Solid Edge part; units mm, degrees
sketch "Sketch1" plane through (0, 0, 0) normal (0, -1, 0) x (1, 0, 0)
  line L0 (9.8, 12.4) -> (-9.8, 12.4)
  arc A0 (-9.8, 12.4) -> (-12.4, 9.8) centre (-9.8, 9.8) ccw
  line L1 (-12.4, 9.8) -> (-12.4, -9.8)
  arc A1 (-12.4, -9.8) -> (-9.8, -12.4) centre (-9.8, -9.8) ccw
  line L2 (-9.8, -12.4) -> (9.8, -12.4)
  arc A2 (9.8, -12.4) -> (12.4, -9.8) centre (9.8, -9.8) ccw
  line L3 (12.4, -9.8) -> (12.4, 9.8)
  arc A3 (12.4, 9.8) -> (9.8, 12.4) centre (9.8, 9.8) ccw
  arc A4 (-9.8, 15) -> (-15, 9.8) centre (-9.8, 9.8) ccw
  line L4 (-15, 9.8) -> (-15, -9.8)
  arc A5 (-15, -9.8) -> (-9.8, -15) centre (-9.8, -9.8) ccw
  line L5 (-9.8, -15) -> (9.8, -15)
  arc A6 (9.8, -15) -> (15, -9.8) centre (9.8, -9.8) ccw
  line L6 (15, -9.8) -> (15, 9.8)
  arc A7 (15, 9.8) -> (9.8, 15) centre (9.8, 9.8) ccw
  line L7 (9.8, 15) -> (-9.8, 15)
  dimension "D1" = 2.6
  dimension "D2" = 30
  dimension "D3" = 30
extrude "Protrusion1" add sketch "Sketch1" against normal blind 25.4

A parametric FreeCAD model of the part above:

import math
import FreeCAD as App
import Part
import Sketcher
from FreeCAD import Vector
Q = App.Units.Quantity

doc = App.newDocument("Part")
body = doc.addObject("PartDesign::Body", "Body")

sketch1 = body.newObject("Sketcher::SketchObject", "Sketch")
sketch1.AttachmentSupport = (doc.getObject("XZ_Plane"), [""])
sketch1.MapMode = "FlatFace"
sketch1.addGeometry(Part.LineSegment(Vector(9.8, 15, 0), Vector(-9.8, 15, 0)), False)
sketch1.addGeometry(Part.ArcOfCircle(Part.Circle(Vector(-9.8, 9.8, 0), Vector(0, 0, 1), 5.2), math.radians(90), math.radians(180)), False)
sketch1.addGeometry(Part.LineSegment(Vector(-15, 9.8, 0), Vector(-15, -9.8, 0)), False)
sketch1.addGeometry(Part.ArcOfCircle(Part.Circle(Vector(-9.8, -9.8, 0), Vector(0, 0, 1), 5.2), math.radians(180), math.radians(270)), False)
sketch1.addGeometry(Part.LineSegment(Vector(-9.8, -15, 0), Vector(9.8, -15, 0)), False)
sketch1.addGeometry(Part.ArcOfCircle(Part.Circle(Vector(9.8, -9.8, 0), Vector(0, 0, 1), 5.2), math.radians(-90), math.radians(0)), False)
sketch1.addGeometry(Part.LineSegment(Vector(15, -9.8, 0), Vector(15, 9.8, 0)), False)
sketch1.addGeometry(Part.ArcOfCircle(Part.Circle(Vector(9.8, 9.8, 0), Vector(0, 0, 1), 5.2), math.radians(0), math.radians(90)), False)
sketch1.addGeometry(Part.LineSegment(Vector(-9.8, 12.4, 0), Vector(9.8, 12.4, 0)), False)
sketch1.addGeometry(Part.ArcOfCircle(Part.Circle(Vector(9.8, 9.8, 0), Vector(0, 0, 1), 2.6), math.radians(0), math.radians(90)), False)
sketch1.addGeometry(Part.LineSegment(Vector(12.4, 9.8, 0), Vector(12.4, -9.8, 0)), False)
sketch1.addGeometry(Part.ArcOfCircle(Part.Circle(Vector(9.8, -9.8, 0), Vector(0, 0, 1), 2.6), math.radians(-90), math.radians(0)), False)
sketch1.addGeometry(Part.LineSegment(Vector(9.8, -12.4, 0), Vector(-9.8, -12.4, 0)), False)
sketch1.addGeometry(Part.ArcOfCircle(Part.Circle(Vector(-9.8, -9.8, 0), Vector(0, 0, 1), 2.6), math.radians(180), math.radians(270)), False)
sketch1.addGeometry(Part.LineSegment(Vector(-12.4, -9.8, 0), Vector(-12.4, 9.8, 0)), False)
sketch1.addGeometry(Part.ArcOfCircle(Part.Circle(Vector(-9.8, 9.8, 0), Vector(0, 0, 1), 2.6), math.radians(90), math.radians(180)), False)
sketch1.addConstraint(Sketcher.Constraint("Tangent", 0, 2, 1, 1))
sketch1.addConstraint(Sketcher.Constraint("Tangent", 1, 2, 2, 1))
sketch1.addConstraint(Sketcher.Constraint("Tangent", 2, 2, 3, 1))
sketch1.addConstraint(Sketcher.Constraint("Tangent", 3, 2, 4, 1))
sketch1.addConstraint(Sketcher.Constraint("Tangent", 4, 2, 5, 1))
sketch1.addConstraint(Sketcher.Constraint("Tangent", 5, 2, 6, 1))
sketch1.addConstraint(Sketcher.Constraint("Tangent", 6, 2, 7, 1))
sketch1.addConstraint(Sketcher.Constraint("Tangent", 7, 2, 0, 1))
sketch1.addConstraint(Sketcher.Constraint("Tangent", 8, 2, 9, 2))
sketch1.addConstraint(Sketcher.Constraint("Tangent", 9, 1, 10, 1))
sketch1.addConstraint(Sketcher.Constraint("Tangent", 10, 2, 11, 2))
sketch1.addConstraint(Sketcher.Constraint("Tangent", 11, 1, 12, 1))
sketch1.addConstraint(Sketcher.Constraint("Tangent", 12, 2, 13, 2))
sketch1.addConstraint(Sketcher.Constraint("Tangent", 13, 1, 14, 1))
sketch1.addConstraint(Sketcher.Constraint("Tangent", 14, 2, 15, 2))
sketch1.addConstraint(Sketcher.Constraint("Tangent", 15, 1, 8, 1))
sketch1.addConstraint(Sketcher.Constraint("Horizontal", 0))
sketch1.addConstraint(Sketcher.Constraint("Vertical", 2))
sketch1.addConstraint(Sketcher.Constraint("Horizontal", 4))
sketch1.addConstraint(Sketcher.Constraint("Vertical", 6))
sketch1.addConstraint(Sketcher.Constraint("Horizontal", 8))
sketch1.addConstraint(Sketcher.Constraint("Vertical", 10))
sketch1.addConstraint(Sketcher.Constraint("Horizontal", 12))
sketch1.addConstraint(Sketcher.Constraint("Vertical", 14))
sketch1.addConstraint(Sketcher.Constraint("Coincident", 9, 3, 7, 3))
sketch1.addConstraint(Sketcher.Constraint("Coincident", 11, 3, 5, 3))
sketch1.addConstraint(Sketcher.Constraint("Coincident", 13, 3, 3, 3))
sketch1.addConstraint(Sketcher.Constraint("Equal", 1, 3))
sketch1.addConstraint(Sketcher.Constraint("Equal", 3, 5))
sketch1.addConstraint(Sketcher.Constraint("Equal", 5, 7))
sketch1.addConstraint(Sketcher.Constraint("Equal", 13, 15))
sketch1.addConstraint(Sketcher.Constraint("Symmetric", 1, 3, 5, 3, -1, 1))
sketch1.addConstraint(Sketcher.Constraint("Equal", 12, 2))
sketch1.addConstraint(Sketcher.Constraint("Radius", 1, Q("5.2 mm")))
sketch1.addConstraint(Sketcher.Constraint("Radius", 9, Q("2.6 mm")))
sketch1.addConstraint(Sketcher.Constraint("DistanceX", 0, 2, 0, 1, Q("19.6 mm")))
pad1 = body.newObject("PartDesign::Pad", "Pad")
pad1.Profile = sketch1
pad1.Length = 25.4
pad1.Reversed = True

doc.recompute()
